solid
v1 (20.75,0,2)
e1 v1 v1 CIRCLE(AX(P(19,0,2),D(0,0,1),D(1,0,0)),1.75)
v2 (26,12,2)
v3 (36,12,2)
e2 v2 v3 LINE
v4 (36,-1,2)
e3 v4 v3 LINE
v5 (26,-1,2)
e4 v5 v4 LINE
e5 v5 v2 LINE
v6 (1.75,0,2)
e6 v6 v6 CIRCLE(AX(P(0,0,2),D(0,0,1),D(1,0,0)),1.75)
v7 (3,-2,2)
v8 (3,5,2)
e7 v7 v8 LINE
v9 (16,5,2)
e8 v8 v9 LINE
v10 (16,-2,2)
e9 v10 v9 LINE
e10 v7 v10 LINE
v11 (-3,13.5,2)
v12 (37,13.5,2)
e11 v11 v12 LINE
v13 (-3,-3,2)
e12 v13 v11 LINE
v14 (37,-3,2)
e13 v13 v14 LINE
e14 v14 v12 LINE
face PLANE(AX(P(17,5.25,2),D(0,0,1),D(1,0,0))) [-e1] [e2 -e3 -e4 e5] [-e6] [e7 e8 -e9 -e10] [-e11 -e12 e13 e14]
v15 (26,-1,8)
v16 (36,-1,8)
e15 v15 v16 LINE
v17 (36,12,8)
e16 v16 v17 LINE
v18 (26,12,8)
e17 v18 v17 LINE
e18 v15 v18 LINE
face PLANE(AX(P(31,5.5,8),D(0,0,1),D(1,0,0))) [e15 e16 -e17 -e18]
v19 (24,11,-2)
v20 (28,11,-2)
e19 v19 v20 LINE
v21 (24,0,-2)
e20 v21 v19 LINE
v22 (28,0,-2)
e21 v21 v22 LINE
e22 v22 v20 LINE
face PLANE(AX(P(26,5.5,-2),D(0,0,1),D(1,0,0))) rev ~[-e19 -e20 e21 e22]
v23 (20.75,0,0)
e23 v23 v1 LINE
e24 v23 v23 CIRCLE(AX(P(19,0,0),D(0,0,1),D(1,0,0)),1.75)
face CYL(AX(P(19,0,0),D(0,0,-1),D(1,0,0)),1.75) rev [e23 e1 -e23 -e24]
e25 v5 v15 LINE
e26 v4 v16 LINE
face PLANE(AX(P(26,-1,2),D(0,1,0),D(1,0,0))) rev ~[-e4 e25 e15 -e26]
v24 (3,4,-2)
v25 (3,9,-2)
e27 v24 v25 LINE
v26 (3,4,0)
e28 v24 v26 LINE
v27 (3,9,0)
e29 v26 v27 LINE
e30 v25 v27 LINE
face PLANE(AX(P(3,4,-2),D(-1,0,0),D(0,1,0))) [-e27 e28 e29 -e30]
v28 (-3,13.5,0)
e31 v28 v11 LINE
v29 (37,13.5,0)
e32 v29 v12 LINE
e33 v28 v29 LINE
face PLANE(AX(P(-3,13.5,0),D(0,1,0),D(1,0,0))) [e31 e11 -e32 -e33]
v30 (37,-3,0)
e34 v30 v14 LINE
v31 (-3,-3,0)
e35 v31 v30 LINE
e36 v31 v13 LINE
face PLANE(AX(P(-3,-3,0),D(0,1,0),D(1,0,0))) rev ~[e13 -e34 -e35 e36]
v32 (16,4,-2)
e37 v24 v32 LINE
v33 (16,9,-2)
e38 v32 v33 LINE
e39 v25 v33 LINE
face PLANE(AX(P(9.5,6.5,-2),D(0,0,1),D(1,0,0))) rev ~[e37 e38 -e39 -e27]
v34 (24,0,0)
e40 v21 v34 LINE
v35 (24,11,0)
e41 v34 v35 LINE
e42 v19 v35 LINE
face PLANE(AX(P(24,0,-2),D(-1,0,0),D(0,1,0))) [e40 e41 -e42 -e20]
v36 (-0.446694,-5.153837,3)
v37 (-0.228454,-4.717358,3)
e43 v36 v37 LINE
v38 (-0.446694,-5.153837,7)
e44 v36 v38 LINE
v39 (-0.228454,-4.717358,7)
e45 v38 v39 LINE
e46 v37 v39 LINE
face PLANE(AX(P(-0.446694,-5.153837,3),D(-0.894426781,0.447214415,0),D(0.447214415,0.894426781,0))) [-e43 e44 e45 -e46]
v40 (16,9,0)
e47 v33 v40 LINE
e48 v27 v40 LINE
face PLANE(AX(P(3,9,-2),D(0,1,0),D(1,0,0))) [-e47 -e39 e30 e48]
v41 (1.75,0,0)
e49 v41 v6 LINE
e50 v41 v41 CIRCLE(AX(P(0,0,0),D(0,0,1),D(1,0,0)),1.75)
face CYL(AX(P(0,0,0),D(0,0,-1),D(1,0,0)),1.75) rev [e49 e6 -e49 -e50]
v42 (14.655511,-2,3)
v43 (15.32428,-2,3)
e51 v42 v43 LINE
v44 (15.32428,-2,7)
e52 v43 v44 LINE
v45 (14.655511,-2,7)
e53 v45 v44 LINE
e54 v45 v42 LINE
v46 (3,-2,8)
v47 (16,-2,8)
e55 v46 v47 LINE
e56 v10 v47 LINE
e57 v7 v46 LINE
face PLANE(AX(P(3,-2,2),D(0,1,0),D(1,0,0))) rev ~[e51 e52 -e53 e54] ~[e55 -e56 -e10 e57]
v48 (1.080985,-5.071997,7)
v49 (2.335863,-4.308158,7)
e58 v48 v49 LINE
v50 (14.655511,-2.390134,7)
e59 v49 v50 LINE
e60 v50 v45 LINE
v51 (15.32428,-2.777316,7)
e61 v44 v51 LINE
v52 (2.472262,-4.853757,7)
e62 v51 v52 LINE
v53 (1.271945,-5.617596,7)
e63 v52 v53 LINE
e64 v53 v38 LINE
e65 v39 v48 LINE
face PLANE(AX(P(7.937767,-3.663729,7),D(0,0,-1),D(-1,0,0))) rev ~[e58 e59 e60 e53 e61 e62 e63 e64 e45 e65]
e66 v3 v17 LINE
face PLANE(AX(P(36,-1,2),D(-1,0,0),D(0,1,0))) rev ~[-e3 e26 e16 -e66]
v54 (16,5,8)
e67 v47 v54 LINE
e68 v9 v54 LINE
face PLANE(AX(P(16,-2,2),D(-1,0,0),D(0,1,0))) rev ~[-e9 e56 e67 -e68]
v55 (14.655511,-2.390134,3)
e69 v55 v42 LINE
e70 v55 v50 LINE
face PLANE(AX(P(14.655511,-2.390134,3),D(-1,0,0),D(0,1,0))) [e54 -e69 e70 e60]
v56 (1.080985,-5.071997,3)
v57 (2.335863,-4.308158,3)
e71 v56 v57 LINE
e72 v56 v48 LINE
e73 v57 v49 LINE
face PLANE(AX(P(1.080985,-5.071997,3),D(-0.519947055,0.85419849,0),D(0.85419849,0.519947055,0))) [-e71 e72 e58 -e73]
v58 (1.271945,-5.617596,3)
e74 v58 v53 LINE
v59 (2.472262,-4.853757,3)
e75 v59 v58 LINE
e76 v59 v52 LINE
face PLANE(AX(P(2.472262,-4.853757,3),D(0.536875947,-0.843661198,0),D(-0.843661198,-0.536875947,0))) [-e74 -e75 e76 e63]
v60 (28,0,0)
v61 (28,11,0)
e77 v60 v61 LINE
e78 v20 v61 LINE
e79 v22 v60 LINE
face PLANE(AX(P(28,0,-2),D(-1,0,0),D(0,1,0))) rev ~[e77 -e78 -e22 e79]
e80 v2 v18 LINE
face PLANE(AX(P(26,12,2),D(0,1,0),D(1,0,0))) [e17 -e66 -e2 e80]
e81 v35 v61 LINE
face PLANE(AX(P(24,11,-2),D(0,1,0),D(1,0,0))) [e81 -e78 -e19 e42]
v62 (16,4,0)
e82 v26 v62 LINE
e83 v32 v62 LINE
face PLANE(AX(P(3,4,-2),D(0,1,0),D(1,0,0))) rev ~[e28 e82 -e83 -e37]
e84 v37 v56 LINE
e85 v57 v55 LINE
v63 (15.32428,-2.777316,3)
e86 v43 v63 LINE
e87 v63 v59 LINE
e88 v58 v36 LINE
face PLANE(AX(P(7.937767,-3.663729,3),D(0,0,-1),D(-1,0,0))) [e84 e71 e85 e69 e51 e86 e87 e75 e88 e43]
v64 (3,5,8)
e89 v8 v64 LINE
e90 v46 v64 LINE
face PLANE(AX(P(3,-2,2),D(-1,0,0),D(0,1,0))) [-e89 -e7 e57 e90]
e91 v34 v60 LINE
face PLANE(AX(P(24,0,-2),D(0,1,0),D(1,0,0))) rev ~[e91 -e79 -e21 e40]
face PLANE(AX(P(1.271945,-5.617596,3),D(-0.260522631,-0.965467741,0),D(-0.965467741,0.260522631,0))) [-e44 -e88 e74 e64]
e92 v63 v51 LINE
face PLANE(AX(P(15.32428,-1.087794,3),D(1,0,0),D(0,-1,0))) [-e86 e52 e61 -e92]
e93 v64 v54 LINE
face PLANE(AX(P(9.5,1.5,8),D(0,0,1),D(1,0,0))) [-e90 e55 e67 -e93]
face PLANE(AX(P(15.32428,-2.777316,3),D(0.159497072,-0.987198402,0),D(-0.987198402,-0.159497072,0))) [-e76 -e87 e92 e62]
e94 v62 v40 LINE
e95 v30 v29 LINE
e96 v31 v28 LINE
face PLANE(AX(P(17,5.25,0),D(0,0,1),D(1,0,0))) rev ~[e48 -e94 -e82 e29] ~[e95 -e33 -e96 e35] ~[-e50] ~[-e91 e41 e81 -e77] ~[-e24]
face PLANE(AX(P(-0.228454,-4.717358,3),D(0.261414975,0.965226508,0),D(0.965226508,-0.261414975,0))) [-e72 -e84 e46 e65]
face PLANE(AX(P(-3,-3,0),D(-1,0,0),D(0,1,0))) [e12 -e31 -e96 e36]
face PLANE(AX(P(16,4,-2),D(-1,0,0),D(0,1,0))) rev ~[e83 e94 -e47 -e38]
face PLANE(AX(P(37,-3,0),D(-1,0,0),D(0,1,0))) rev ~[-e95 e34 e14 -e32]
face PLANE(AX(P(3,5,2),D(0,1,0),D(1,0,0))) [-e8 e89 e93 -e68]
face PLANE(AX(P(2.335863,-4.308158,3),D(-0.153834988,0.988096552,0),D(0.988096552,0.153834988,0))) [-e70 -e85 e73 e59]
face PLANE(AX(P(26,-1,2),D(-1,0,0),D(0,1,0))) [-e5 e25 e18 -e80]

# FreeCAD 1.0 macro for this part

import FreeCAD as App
import Part
import Sketcher
from FreeCAD import Vector
Q = App.Units.Quantity

doc = App.newDocument("Part")
body = doc.addObject("PartDesign::Body", "Body")

sketch1 = body.newObject("Sketcher::SketchObject", "Sketch")
sketch1.AttachmentSupport = (doc.getObject("XY_Plane"), [""])
sketch1.MapMode = "FlatFace"
sketch1.AttachmentOffset = App.Placement(Vector(0, 0, -2), App.Rotation())
sketch1.addGeometry(Part.LineSegment(Vector(24, 11, 0), Vector(24, 0, 0)), False)
sketch1.addGeometry(Part.LineSegment(Vector(24, 0, 0), Vector(28, 0, 0)), False)
sketch1.addGeometry(Part.LineSegment(Vector(28, 0, 0), Vector(28, 11, 0)), False)
sketch1.addGeometry(Part.LineSegment(Vector(28, 11, 0), Vector(24, 11, 0)), False)
sketch1.addConstraint(Sketcher.Constraint("Coincident", 0, 2, 1, 1))
sketch1.addConstraint(Sketcher.Constraint("Coincident", 1, 2, 2, 1))
sketch1.addConstraint(Sketcher.Constraint("Coincident", 2, 2, 3, 1))
sketch1.addConstraint(Sketcher.Constraint("Coincident", 3, 2, 0, 1))
sketch1.addConstraint(Sketcher.Constraint("Vertical", 0))
sketch1.addConstraint(Sketcher.Constraint("Horizontal", 1))
sketch1.addConstraint(Sketcher.Constraint("Vertical", 2))
sketch1.addConstraint(Sketcher.Constraint("Horizontal", 3))
sketch1.addConstraint(Sketcher.Constraint("PointOnObject", 0, 2, -1))
sketch1.addConstraint(Sketcher.Constraint("DistanceX", 1, 1, 1, 2, Q("4 mm")))
sketch1.addConstraint(Sketcher.Constraint("DistanceY", 0, 2, 0, 1, Q("11 mm")))
sketch1.addConstraint(Sketcher.Constraint("DistanceX", -1, 1, 0, 2, Q("24 mm")))
pad1 = body.newObject("PartDesign::Pad", "Pad")
pad1.Profile = sketch1
pad1.Length = 2
body2 = doc.addObject("PartDesign::Body", "Body001")

sketch2 = body2.newObject("Sketcher::SketchObject", "Sketch001")
sketch2.AttachmentSupport = (doc.getObject("XY_Plane001"), [""])
sketch2.MapMode = "FlatFace"
sketch2.AttachmentOffset = App.Placement(Vector(0, 0, 2), App.Rotation())
sketch2.addGeometry(Part.LineSegment(Vector(26, 12, 0), Vector(26, -1, 0)), False)
sketch2.addGeometry(Part.LineSegment(Vector(26, -1, 0), Vector(36, -1, 0)), False)
sketch2.addGeometry(Part.LineSegment(Vector(36, -1, 0), Vector(36, 12, 0)), False)
sketch2.addGeometry(Part.LineSegment(Vector(36, 12, 0), Vector(26, 12, 0)), False)
sketch2.addConstraint(Sketcher.Constraint("Coincident", 0, 2, 1, 1))
sketch2.addConstraint(Sketcher.Constraint("Coincident", 1, 2, 2, 1))
sketch2.addConstraint(Sketcher.Constraint("Coincident", 2, 2, 3, 1))
sketch2.addConstraint(Sketcher.Constraint("Coincident", 3, 2, 0, 1))
sketch2.addConstraint(Sketcher.Constraint("Vertical", 0))
sketch2.addConstraint(Sketcher.Constraint("Horizontal", 1))
sketch2.addConstraint(Sketcher.Constraint("Vertical", 2))
sketch2.addConstraint(Sketcher.Constraint("Horizontal", 3))
sketch2.addConstraint(Sketcher.Constraint("DistanceX", 1, 1, 1, 2, Q("10 mm")))
sketch2.addConstraint(Sketcher.Constraint("DistanceY", 0, 2, 0, 1, Q("13 mm")))
sketch2.addConstraint(Sketcher.Constraint("DistanceX", -1, 1, 0, 2, Q("26 mm")))
sketch2.addConstraint(Sketcher.Constraint("DistanceY", 0, 2, -1, 1, Q("1 mm")))
pad2 = body2.newObject("PartDesign::Pad", "Pad001")
pad2.Profile = sketch2
pad2.Length = 6
body3 = doc.addObject("PartDesign::Body", "Body002")

sketch3 = body3.newObject("Sketcher::SketchObject", "Sketch002")
sketch3.AttachmentSupport = (doc.getObject("XY_Plane002"), [""])
sketch3.MapMode = "FlatFace"
sketch3.AttachmentOffset = App.Placement(Vector(0, 0, 2), App.Rotation())
sketch3.addGeometry(Part.LineSegment(Vector(3, 5, 0), Vector(3, -2, 0)), False)
sketch3.addGeometry(Part.LineSegment(Vector(3, -2, 0), Vector(16, -2, 0)), False)
sketch3.addGeometry(Part.LineSegment(Vector(16, -2, 0), Vector(16, 5, 0)), False)
sketch3.addGeometry(Part.LineSegment(Vector(16, 5, 0), Vector(3, 5, 0)), False)
sketch3.addConstraint(Sketcher.Constraint("Coincident", 0, 2, 1, 1))
sketch3.addConstraint(Sketcher.Constraint("Coincident", 1, 2, 2, 1))
sketch3.addConstraint(Sketcher.Constraint("Coincident", 2, 2, 3, 1))
sketch3.addConstraint(Sketcher.Constraint("Coincident", 3, 2, 0, 1))
sketch3.addConstraint(Sketcher.Constraint("Vertical", 0))
sketch3.addConstraint(Sketcher.Constraint("Horizontal", 1))
sketch3.addConstraint(Sketcher.Constraint("Vertical", 2))
sketch3.addConstraint(Sketcher.Constraint("Horizontal", 3))
sketch3.addConstraint(Sketcher.Constraint("DistanceX", 1, 1, 1, 2, Q("13 mm")))
sketch3.addConstraint(Sketcher.Constraint("DistanceY", 0, 2, 0, 1, Q("7 mm")))
sketch3.addConstraint(Sketcher.Constraint("DistanceX", -1, 1, 0, 2, Q("3 mm")))
sketch3.addConstraint(Sketcher.Constraint("DistanceY", 0, 2, -1, 1, Q("2 mm")))
pad3 = body3.newObject("PartDesign::Pad", "Pad002")
pad3.Profile = sketch3
pad3.Length = 6
body4 = doc.addObject("PartDesign::Body", "Body003")

sketch4 = body4.newObject("Sketcher::SketchObject", "Sketch003")
sketch4.AttachmentSupport = (doc.getObject("XY_Plane003"), [""])
sketch4.MapMode = "FlatFace"
sketch4.AttachmentOffset = App.Placement(Vector(0, 0, 3), App.Rotation())
sketch4.addGeometry(Part.LineSegment(Vector(15.32428, -2.777316, 0), Vector(15.32428, -1.087794, 0)), False)
sketch4.addGeometry(Part.LineSegment(Vector(15.32428, -1.087794, 0), Vector(14.655511, -1.087794, 0)), False)
sketch4.addGeometry(Part.LineSegment(Vector(14.655511, -1.087794, 0), Vector(14.655511, -2.390134, 0)), False)
sketch4.addGeometry(Part.LineSegment(Vector(14.655511, -2.390134, 0), Vector(2.335863, -4.308158, 0)), False)
sketch4.addGeometry(Part.LineSegment(Vector(2.335863, -4.308158, 0), Vector(1.080985, -5.071997, 0)), False)
sketch4.addGeometry(Part.LineSegment(Vector(1.080985, -5.071997, 0), Vector(-0.228454, -4.717358, 0)), False)
sketch4.addGeometry(Part.LineSegment(Vector(-0.228454, -4.717358, 0), Vector(-0.446694, -5.153837, 0)), False)
sketch4.addGeometry(Part.LineSegment(Vector(-0.446694, -5.153837, 0), Vector(1.271945, -5.617596, 0)), False)
sketch4.addGeometry(Part.LineSegment(Vector(1.271945, -5.617596, 0), Vector(2.472262, -4.853757, 0)), False)
sketch4.addGeometry(Part.LineSegment(Vector(2.472262, -4.853757, 0), Vector(15.32428, -2.777316, 0)), False)
sketch4.addConstraint(Sketcher.Constraint("Coincident", 0, 2, 1, 1))
sketch4.addConstraint(Sketcher.Constraint("Coincident", 1, 2, 2, 1))
sketch4.addConstraint(Sketcher.Constraint("Coincident", 2, 2, 3, 1))
sketch4.addConstraint(Sketcher.Constraint("Coincident", 3, 2, 4, 1))
sketch4.addConstraint(Sketcher.Constraint("Coincident", 4, 2, 5, 1))
sketch4.addConstraint(Sketcher.Constraint("Coincident", 5, 2, 6, 1))
sketch4.addConstraint(Sketcher.Constraint("Coincident", 6, 2, 7, 1))
sketch4.addConstraint(Sketcher.Constraint("Coincident", 7, 2, 8, 1))
sketch4.addConstraint(Sketcher.Constraint("Coincident", 8, 2, 9, 1))
sketch4.addConstraint(Sketcher.Constraint("Coincident", 9, 2, 0, 1))
sketch4.addConstraint(Sketcher.Constraint("Vertical", 0))
sketch4.addConstraint(Sketcher.Constraint("Horizontal", 1))
sketch4.addConstraint(Sketcher.Constraint("Vertical", 2))
sketch4.addConstraint(Sketcher.Constraint("Distance", 6, Q("0.487999 mm")))
sketch4.addConstraint(Sketcher.Constraint("DistanceX", 1, 2, 1, 1, Q("0.668769 mm")))
sketch4.addConstraint(Sketcher.Constraint("DistanceY", 2, 2, 2, 1, Q("1.30234 mm")))
sketch4.addConstraint(Sketcher.Constraint("DistanceY", 5, 2, 3, 2, Q("0.4092 mm")))
sketch4.addConstraint(Sketcher.Constraint("DistanceY", 7, 2, 4, 2, Q("0.545599 mm")))
sketch4.addConstraint(Sketcher.Constraint("DistanceX", 5, 2, 7, 2, Q("1.500399 mm")))
sketch4.addConstraint(Sketcher.Constraint("DistanceX", 3, 2, 8, 2, Q("0.136399 mm")))
sketch4.addConstraint(Sketcher.Constraint("DistanceY", 8, 2, 3, 2, Q("0.545599 mm")))
sketch4.addConstraint(Sketcher.Constraint("Distance", 3, Q("12.468061 mm")))
sketch4.addConstraint(Sketcher.Constraint("Distance", 4, Q("1.469071 mm")))
sketch4.addConstraint(Sketcher.Constraint("Distance", 7, Q("1.78011 mm")))
sketch4.addConstraint(Sketcher.Constraint("DistanceY", 0, 1, 0, 2, Q("1.689522 mm")))
sketch4.addConstraint(Sketcher.Constraint("DistanceX", -1, 1, 0, 2, Q("15.32428 mm")))
sketch4.addConstraint(Sketcher.Constraint("DistanceX", 3, 2, 2, 2, Q("12.319648 mm")))
sketch4.addConstraint(Sketcher.Constraint("DistanceY", 4, 2, 3, 2, Q("0.763839 mm")))
sketch4.addConstraint(Sketcher.Constraint("DistanceX", 5, 2, 4, 2, Q("1.309439 mm")))
sketch4.addConstraint(Sketcher.Constraint("DistanceY", 0, 2, -1, 1, Q("1.087794 mm")))
pad4 = body4.newObject("PartDesign::Pad", "Pad003")
pad4.Profile = sketch4
pad4.Length = 4
doc.recompute()

boolean = body4.newObject("PartDesign::Boolean", "Boolean")
boolean.Type = "Fuse"
boolean.addObjects([body3])
body5 = doc.addObject("PartDesign::Body", "Body004")

sketch5 = body5.newObject("Sketcher::SketchObject", "Sketch004")
sketch5.AttachmentSupport = (doc.getObject("XY_Plane004"), [""])
sketch5.MapMode = "FlatFace"
sketch5.addGeometry(Part.LineSegment(Vector(-3, 13.5, 0), Vector(-3, -3, 0)), False)
sketch5.addGeometry(Part.LineSegment(Vector(-3, -3, 0), Vector(37, -3, 0)), False)
sketch5.addGeometry(Part.LineSegment(Vector(37, -3, 0), Vector(37, 13.5, 0)), False)
sketch5.addGeometry(Part.LineSegment(Vector(37, 13.5, 0), Vector(-3, 13.5, 0)), False)
sketch5.addGeometry(Part.Circle(Vector(0, 0, 0), Vector(0, 0, 1), 1.75), False)
sketch5.addGeometry(Part.Circle(Vector(19, 0, 0), Vector(0, 0, 1), 1.75), False)
sketch5.addConstraint(Sketcher.Constraint("Coincident", 0, 2, 1, 1))
sketch5.addConstraint(Sketcher.Constraint("Coincident", 1, 2, 2, 1))
sketch5.addConstraint(Sketcher.Constraint("Coincident", 2, 2, 3, 1))
sketch5.addConstraint(Sketcher.Constraint("Coincident", 3, 2, 0, 1))
sketch5.addConstraint(Sketcher.Constraint("Vertical", 0))
sketch5.addConstraint(Sketcher.Constraint("Horizontal", 1))
sketch5.addConstraint(Sketcher.Constraint("Vertical", 2))
sketch5.addConstraint(Sketcher.Constraint("Horizontal", 3))
sketch5.addConstraint(Sketcher.Constraint("Coincident", 4, 3, -1, 1))
sketch5.addConstraint(Sketcher.Constraint("Equal", 4, 5))
sketch5.addConstraint(Sketcher.Constraint("PointOnObject", 5, 3, -1))
sketch5.addConstraint(Sketcher.Constraint("Diameter", 4, Q("3.5 mm")))
sketch5.addConstraint(Sketcher.Constraint("DistanceX", 1, 1, 1, 2, Q("40 mm")))
sketch5.addConstraint(Sketcher.Constraint("DistanceY", 0, 2, 0, 1, Q("16.5 mm")))
sketch5.addConstraint(Sketcher.Constraint("DistanceX", -1, 1, 5, 3, Q("19 mm")))
sketch5.addConstraint(Sketcher.Constraint("DistanceX", 0, 2, -1, 1, Q("3 mm")))
sketch5.addConstraint(Sketcher.Constraint("DistanceY", 0, 2, -1, 1, Q("3 mm")))
pad5 = body5.newObject("PartDesign::Pad", "Pad004")
pad5.Profile = sketch5
pad5.Length = 2
body6 = doc.addObject("PartDesign::Body", "Body005")
body6.AllowCompound = True

sketch6 = body6.newObject("Sketcher::SketchObject", "Sketch005")
sketch6.AttachmentSupport = (doc.getObject("XY_Plane005"), [""])
sketch6.MapMode = "FlatFace"
sketch6.AttachmentOffset = App.Placement(Vector(0, 0, -2), App.Rotation())
sketch6.addGeometry(Part.LineSegment(Vector(3, 9, 0), Vector(3, 4, 0)), False)
sketch6.addGeometry(Part.LineSegment(Vector(3, 4, 0), Vector(16, 4, 0)), False)
sketch6.addGeometry(Part.LineSegment(Vector(16, 4, 0), Vector(16, 9, 0)), False)
sketch6.addGeometry(Part.LineSegment(Vector(16, 9, 0), Vector(3, 9, 0)), False)
sketch6.addConstraint(Sketcher.Constraint("Coincident", 0, 2, 1, 1))
sketch6.addConstraint(Sketcher.Constraint("Coincident", 1, 2, 2, 1))
sketch6.addConstraint(Sketcher.Constraint("Coincident", 2, 2, 3, 1))
sketch6.addConstraint(Sketcher.Constraint("Coincident", 3, 2, 0, 1))
sketch6.addConstraint(Sketcher.Constraint("Vertical", 0))
sketch6.addConstraint(Sketcher.Constraint("Horizontal", 1))
sketch6.addConstraint(Sketcher.Constraint("Vertical", 2))
sketch6.addConstraint(Sketcher.Constraint("Horizontal", 3))
sketch6.addConstraint(Sketcher.Constraint("DistanceX", 1, 1, 1, 2, Q("13 mm")))
sketch6.addConstraint(Sketcher.Constraint("DistanceY", 0, 2, 0, 1, Q("5 mm")))
sketch6.addConstraint(Sketcher.Constraint("DistanceX", -1, 1, 0, 2, Q("3 mm")))
sketch6.addConstraint(Sketcher.Constraint("DistanceY", -1, 1, 0, 2, Q("4 mm")))
pad6 = body6.newObject("PartDesign::Pad", "Pad005")
pad6.Profile = sketch6
pad6.Length = 2
doc.recompute()

boolean2 = body6.newObject("PartDesign::Boolean", "Boolean001")
boolean2.Type = "Fuse"
boolean2.addObjects([body])
doc.recompute()

boolean3 = body6.newObject("PartDesign::Boolean", "Boolean002")
boolean3.Type = "Fuse"
boolean3.addObjects([body2])
doc.recompute()

boolean4 = body6.newObject("PartDesign::Boolean", "Boolean003")
boolean4.Type = "Fuse"
boolean4.addObjects([body4])
doc.recompute()

boolean5 = body6.newObject("PartDesign::Boolean", "Boolean004")
boolean5.Type = "Fuse"
boolean5.addObjects([body5])

doc.recompute()
